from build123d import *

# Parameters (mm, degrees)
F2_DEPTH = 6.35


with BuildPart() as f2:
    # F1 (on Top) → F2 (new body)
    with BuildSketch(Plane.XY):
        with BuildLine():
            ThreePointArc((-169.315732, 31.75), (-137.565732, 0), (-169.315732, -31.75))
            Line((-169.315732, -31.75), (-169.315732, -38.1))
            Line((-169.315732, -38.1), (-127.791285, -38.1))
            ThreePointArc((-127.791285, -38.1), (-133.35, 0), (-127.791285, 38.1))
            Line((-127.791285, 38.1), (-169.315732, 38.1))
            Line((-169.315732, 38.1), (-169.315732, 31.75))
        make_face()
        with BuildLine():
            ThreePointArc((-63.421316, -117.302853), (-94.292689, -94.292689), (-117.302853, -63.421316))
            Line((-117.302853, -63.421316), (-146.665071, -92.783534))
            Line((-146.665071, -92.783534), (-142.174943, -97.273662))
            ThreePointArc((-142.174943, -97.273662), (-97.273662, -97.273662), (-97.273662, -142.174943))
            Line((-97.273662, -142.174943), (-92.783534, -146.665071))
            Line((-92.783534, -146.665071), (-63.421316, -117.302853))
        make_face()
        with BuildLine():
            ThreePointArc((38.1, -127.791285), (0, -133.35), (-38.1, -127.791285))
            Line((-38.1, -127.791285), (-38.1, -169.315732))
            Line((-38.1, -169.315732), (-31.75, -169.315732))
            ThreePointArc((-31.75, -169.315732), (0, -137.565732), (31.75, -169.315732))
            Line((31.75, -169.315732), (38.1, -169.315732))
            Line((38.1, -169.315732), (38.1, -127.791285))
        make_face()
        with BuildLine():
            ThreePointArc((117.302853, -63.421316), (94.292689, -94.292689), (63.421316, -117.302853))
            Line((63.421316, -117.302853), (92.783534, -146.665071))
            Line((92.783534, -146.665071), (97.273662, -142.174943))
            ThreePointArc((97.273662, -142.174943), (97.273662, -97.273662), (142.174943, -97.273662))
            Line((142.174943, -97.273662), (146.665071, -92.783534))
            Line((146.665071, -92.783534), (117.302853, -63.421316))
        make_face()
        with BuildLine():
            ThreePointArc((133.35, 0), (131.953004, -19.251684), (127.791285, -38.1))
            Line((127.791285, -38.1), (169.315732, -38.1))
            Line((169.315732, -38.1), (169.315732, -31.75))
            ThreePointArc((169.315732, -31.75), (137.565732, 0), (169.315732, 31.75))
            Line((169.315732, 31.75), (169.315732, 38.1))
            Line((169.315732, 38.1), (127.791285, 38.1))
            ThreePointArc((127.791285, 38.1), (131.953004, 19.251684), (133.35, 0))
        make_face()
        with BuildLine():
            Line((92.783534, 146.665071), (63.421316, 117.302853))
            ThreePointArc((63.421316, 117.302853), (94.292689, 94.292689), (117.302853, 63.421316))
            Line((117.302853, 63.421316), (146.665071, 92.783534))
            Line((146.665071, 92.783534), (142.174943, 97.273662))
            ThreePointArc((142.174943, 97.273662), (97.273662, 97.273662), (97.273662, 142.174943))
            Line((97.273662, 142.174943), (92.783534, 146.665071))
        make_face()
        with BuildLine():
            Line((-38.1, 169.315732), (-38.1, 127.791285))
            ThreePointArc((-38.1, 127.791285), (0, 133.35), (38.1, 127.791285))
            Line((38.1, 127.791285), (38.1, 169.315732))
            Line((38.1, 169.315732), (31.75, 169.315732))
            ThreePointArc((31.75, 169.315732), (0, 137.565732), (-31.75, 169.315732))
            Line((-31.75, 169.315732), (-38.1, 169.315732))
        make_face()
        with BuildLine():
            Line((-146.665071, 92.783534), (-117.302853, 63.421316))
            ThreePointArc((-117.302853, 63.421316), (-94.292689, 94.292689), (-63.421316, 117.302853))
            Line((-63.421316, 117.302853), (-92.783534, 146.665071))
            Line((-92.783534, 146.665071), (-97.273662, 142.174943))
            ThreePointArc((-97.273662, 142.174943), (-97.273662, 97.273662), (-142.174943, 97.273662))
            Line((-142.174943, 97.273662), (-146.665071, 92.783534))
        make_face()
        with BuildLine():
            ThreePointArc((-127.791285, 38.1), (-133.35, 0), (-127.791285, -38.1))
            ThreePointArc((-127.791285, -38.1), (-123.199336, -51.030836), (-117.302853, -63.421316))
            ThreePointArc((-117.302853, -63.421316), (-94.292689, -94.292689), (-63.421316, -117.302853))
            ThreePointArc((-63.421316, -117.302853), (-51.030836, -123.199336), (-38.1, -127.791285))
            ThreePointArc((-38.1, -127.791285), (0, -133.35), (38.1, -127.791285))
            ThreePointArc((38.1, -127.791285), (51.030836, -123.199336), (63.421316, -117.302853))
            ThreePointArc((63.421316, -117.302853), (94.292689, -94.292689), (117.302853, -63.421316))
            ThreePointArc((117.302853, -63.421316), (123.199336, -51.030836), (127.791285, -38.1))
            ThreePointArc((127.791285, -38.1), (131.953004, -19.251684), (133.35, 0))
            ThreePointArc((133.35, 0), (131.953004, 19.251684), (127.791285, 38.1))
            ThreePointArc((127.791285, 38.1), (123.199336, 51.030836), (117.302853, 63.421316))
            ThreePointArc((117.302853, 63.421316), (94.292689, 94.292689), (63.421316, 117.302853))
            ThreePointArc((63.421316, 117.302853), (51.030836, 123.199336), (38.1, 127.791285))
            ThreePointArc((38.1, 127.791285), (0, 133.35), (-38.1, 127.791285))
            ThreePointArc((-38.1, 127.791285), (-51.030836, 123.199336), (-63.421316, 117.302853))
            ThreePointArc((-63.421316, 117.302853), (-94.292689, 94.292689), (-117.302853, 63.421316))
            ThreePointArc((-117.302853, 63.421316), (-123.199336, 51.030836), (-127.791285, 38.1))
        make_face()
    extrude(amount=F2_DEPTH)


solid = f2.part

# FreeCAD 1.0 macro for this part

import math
import FreeCAD as App
import Part
import Sketcher
Q = App.Units.Quantity

doc = App.newDocument("Part")
params = doc.addObject("Spreadsheet::Sheet", "Params")
for row, (alias, value) in enumerate([
    ("sketch1_radius", "1.25 in"),
    ("sketch1_width", "0.25 in"),
    ("sketch1_length", "0.25 in"),
    ("pad1_length", "0.25 in"),
], start=1):
    params.set(f"A{row}", alias)
    params.set(f"B{row}", "=" + value)
    params.setAlias(f"B{row}", alias)

body = doc.addObject("PartDesign::Body", "Body")

# Sketch on XY plane
sketch1 = body.newObject("Sketcher::SketchObject", "Sketch")
sketch1.AttachmentSupport = (doc.getObject("XY_Plane"), [""])
sketch1.MapMode = "FlatFace"
sketch1.addGeometry([
    Part.ArcOfCircle(Part.Circle(App.Vector(-169.315732, 0, 0), App.Vector(0, 0, 1), 31.75), math.radians(-90), math.radians(90)),  # 0
    Part.LineSegment(App.Vector(-169.315732, -31.75, 0), App.Vector(-169.315732, -38.1, 0)),  # 1
    Part.LineSegment(App.Vector(-169.315732, -38.1, 0), App.Vector(-127.791285, -38.1, 0)),  # 2
    Part.ArcOfCircle(Part.Circle(App.Vector(-0.000019, -0.00001, 0), App.Vector(0, 0, 1), 133.349979), math.radians(-163.398452), math.radians(-151.60155)),  # 3
    Part.LineSegment(App.Vector(-117.302853, -63.421316, 0), App.Vector(-146.665071, -92.783534, 0)),  # 4
    Part.LineSegment(App.Vector(-146.665071, -92.783534, 0), App.Vector(-142.174943, -97.273662, 0)),  # 5
    Part.ArcOfCircle(Part.Circle(App.Vector(-119.724302, -119.724302, 0), App.Vector(0, 0, 1), 31.75), math.radians(-45), math.radians(135)),  # 6
    Part.LineSegment(App.Vector(-97.273662, -142.174943, 0), App.Vector(-92.783534, -146.665071, 0)),  # 7
    Part.LineSegment(App.Vector(-92.783534, -146.665071, 0), App.Vector(-63.421316, -117.302853, 0)),  # 8
    Part.ArcOfCircle(Part.Circle(App.Vector(-0.00001, -0.000019, 0), App.Vector(0, 0, 1), 133.349979), math.radians(-118.39845), math.radians(-106.601548)),  # 9
    Part.LineSegment(App.Vector(-38.1, -127.791285, 0), App.Vector(-38.1, -169.315732, 0)),  # 10
    Part.LineSegment(App.Vector(-38.1, -169.315732, 0), App.Vector(-31.75, -169.315732, 0)),  # 11
    Part.ArcOfCircle(Part.Circle(App.Vector(0, -169.315732, 0), App.Vector(0, 0, 1), 31.75), math.radians(0), math.radians(180)),  # 12
    Part.LineSegment(App.Vector(31.75, -169.315732, 0), App.Vector(38.1, -169.315732, 0)),  # 13
    Part.LineSegment(App.Vector(38.1, -169.315732, 0), App.Vector(38.1, -127.791285, 0)),  # 14
    Part.ArcOfCircle(Part.Circle(App.Vector(0.00001, -0.000019, 0), App.Vector(0, 0, 1), 133.349979), math.radians(-73.398452), math.radians(-61.60155)),  # 15
    Part.LineSegment(App.Vector(63.421316, -117.302853, 0), App.Vector(92.783534, -146.665071, 0)),  # 16
    Part.LineSegment(App.Vector(92.783534, -146.665071, 0), App.Vector(97.273662, -142.174943, 0)),  # 17
    Part.ArcOfCircle(Part.Circle(App.Vector(119.724302, -119.724302, 0), App.Vector(0, 0, 1), 31.75), math.radians(45), math.radians(225)),  # 18
    Part.LineSegment(App.Vector(142.174943, -97.273662, 0), App.Vector(146.665071, -92.783534, 0)),  # 19
    Part.LineSegment(App.Vector(146.665071, -92.783534, 0), App.Vector(117.302853, -63.421316, 0)),  # 20
    Part.ArcOfCircle(Part.Circle(App.Vector(0.000019, -0.00001, 0), App.Vector(0, 0, 1), 133.349979), math.radians(-28.39845), math.radians(-16.601548)),  # 21
    Part.LineSegment(App.Vector(127.791285, -38.1, 0), App.Vector(169.315732, -38.1, 0)),  # 22
    Part.LineSegment(App.Vector(169.315732, -38.1, 0), App.Vector(169.315732, -31.75, 0)),  # 23
    Part.ArcOfCircle(Part.Circle(App.Vector(169.315732, 0, 0), App.Vector(0, 0, 1), 31.75), math.radians(90), math.radians(270)),  # 24
    Part.LineSegment(App.Vector(169.315732, 31.75, 0), App.Vector(169.315732, 38.1, 0)),  # 25
    Part.LineSegment(App.Vector(169.315732, 38.1, 0), App.Vector(127.791285, 38.1, 0)),  # 26
    Part.ArcOfCircle(Part.Circle(App.Vector(0.000019, 0.00001, 0), App.Vector(0, 0, 1), 133.349979), math.radians(16.601548), math.radians(28.39845)),  # 27
    Part.LineSegment(App.Vector(117.302853, 63.421316, 0), App.Vector(146.665071, 92.783534, 0)),  # 28
    Part.LineSegment(App.Vector(146.665071, 92.783534, 0), App.Vector(142.174943, 97.273662, 0)),  # 29
    Part.ArcOfCircle(Part.Circle(App.Vector(119.724302, 119.724302, 0), App.Vector(0, 0, 1), 31.75), math.radians(135), math.radians(315)),  # 30
    Part.LineSegment(App.Vector(97.273662, 142.174943, 0), App.Vector(92.783534, 146.665071, 0)),  # 31
    Part.LineSegment(App.Vector(92.783534, 146.665071, 0), App.Vector(63.421316, 117.302853, 0)),  # 32
    Part.ArcOfCircle(Part.Circle(App.Vector(0.00001, 0.000019, 0), App.Vector(0, 0, 1), 133.349979), math.radians(61.60155), math.radians(73.398452)),  # 33
    Part.LineSegment(App.Vector(38.1, 127.791285, 0), App.Vector(38.1, 169.315732, 0)),  # 34
    Part.LineSegment(App.Vector(38.1, 169.315732, 0), App.Vector(31.75, 169.315732, 0)),  # 35
    Part.ArcOfCircle(Part.Circle(App.Vector(0, 169.315732, 0), App.Vector(0, 0, 1), 31.75), math.radians(180), math.radians(360)),  # 36
    Part.LineSegment(App.Vector(-31.75, 169.315732, 0), App.Vector(-38.1, 169.315732, 0)),  # 37
    Part.LineSegment(App.Vector(-38.1, 169.315732, 0), App.Vector(-38.1, 127.791285, 0)),  # 38
    Part.ArcOfCircle(Part.Circle(App.Vector(-0.00001, 0.000019, 0), App.Vector(0, 0, 1), 133.349979), math.radians(106.601548), math.radians(118.39845)),  # 39
    Part.LineSegment(App.Vector(-63.421316, 117.302853, 0), App.Vector(-92.783534, 146.665071, 0)),  # 40
    Part.LineSegment(App.Vector(-92.783534, 146.665071, 0), App.Vector(-97.273662, 142.174943, 0)),  # 41
    Part.ArcOfCircle(Part.Circle(App.Vector(-119.724302, 119.724302, 0), App.Vector(0, 0, 1), 31.75), math.radians(-135), math.radians(45)),  # 42
    Part.LineSegment(App.Vector(-142.174943, 97.273662, 0), App.Vector(-146.665071, 92.783534, 0)),  # 43
    Part.LineSegment(App.Vector(-146.665071, 92.783534, 0), App.Vector(-117.302853, 63.421316, 0)),  # 44
    Part.ArcOfCircle(Part.Circle(App.Vector(-0.000019, 0.00001, 0), App.Vector(0, 0, 1), 133.349979), math.radians(151.60155), math.radians(163.398452)),  # 45
    Part.LineSegment(App.Vector(-127.791285, 38.1, 0), App.Vector(-169.315732, 38.1, 0)),  # 46
    Part.LineSegment(App.Vector(-169.315732, 38.1, 0), App.Vector(-169.315732, 31.75, 0)),  # 47
], False)
sketch1.addConstraint([
    Sketcher.Constraint("Coincident", 0, 1, 1, 1),
    Sketcher.Constraint("Coincident", 1, 2, 2, 1),
    Sketcher.Constraint("Coincident", 2, 2, 3, 1),
    Sketcher.Constraint("Coincident", 3, 2, 4, 1),
    Sketcher.Constraint("Coincident", 4, 2, 5, 1),
    Sketcher.Constraint("Coincident", 5, 2, 6, 2),
    Sketcher.Constraint("Coincident", 6, 1, 7, 1),
    Sketcher.Constraint("Coincident", 7, 2, 8, 1),
    Sketcher.Constraint("Coincident", 8, 2, 9, 1),
    Sketcher.Constraint("Coincident", 9, 2, 10, 1),
    Sketcher.Constraint("Coincident", 10, 2, 11, 1),
    Sketcher.Constraint("Coincident", 11, 2, 12, 2),
    Sketcher.Constraint("Coincident", 12, 1, 13, 1),
    Sketcher.Constraint("Coincident", 13, 2, 14, 1),
    Sketcher.Constraint("Coincident", 14, 2, 15, 1),
    Sketcher.Constraint("Coincident", 15, 2, 16, 1),
    Sketcher.Constraint("Coincident", 16, 2, 17, 1),
    Sketcher.Constraint("Coincident", 17, 2, 18, 2),
    Sketcher.Constraint("Coincident", 18, 1, 19, 1),
    Sketcher.Constraint("Coincident", 19, 2, 20, 1),
    Sketcher.Constraint("Coincident", 20, 2, 21, 1),
    Sketcher.Constraint("Coincident", 21, 2, 22, 1),
    Sketcher.Constraint("Coincident", 22, 2, 23, 1),
    Sketcher.Constraint("Coincident", 23, 2, 24, 2),
    Sketcher.Constraint("Coincident", 24, 1, 25, 1),
    Sketcher.Constraint("Coincident", 25, 2, 26, 1),
    Sketcher.Constraint("Coincident", 26, 2, 27, 1),
    Sketcher.Constraint("Coincident", 27, 2, 28, 1),
    Sketcher.Constraint("Coincident", 28, 2, 29, 1),
    Sketcher.Constraint("Coincident", 29, 2, 30, 2),
    Sketcher.Constraint("Coincident", 30, 1, 31, 1),
    Sketcher.Constraint("Coincident", 31, 2, 32, 1),
    Sketcher.Constraint("Coincident", 32, 2, 33, 1),
    Sketcher.Constraint("Coincident", 33, 2, 34, 1),
    Sketcher.Constraint("Coincident", 34, 2, 35, 1),
    Sketcher.Constraint("Coincident", 35, 2, 36, 2),
    Sketcher.Constraint("Coincident", 36, 1, 37, 1),
    Sketcher.Constraint("Coincident", 37, 2, 38, 1),
    Sketcher.Constraint("Coincident", 38, 2, 39, 1),
    Sketcher.Constraint("Coincident", 39, 2, 40, 1),
    Sketcher.Constraint("Coincident", 40, 2, 41, 1),
    Sketcher.Constraint("Coincident", 41, 2, 42, 2),
    Sketcher.Constraint("Coincident", 42, 1, 43, 1),
    Sketcher.Constraint("Coincident", 43, 2, 44, 1),
    Sketcher.Constraint("Coincident", 44, 2, 45, 1),
    Sketcher.Constraint("Coincident", 45, 2, 46, 1),
    Sketcher.Constraint("Coincident", 46, 2, 47, 1),
    Sketcher.Constraint("Coincident", 47, 2, 0, 2),
    Sketcher.Constraint("Vertical", 1),
    Sketcher.Constraint("Horizontal", 2),
    Sketcher.Constraint("Vertical", 10),
    Sketcher.Constraint("Horizontal", 11),
    Sketcher.Constraint("Horizontal", 13),
    Sketcher.Constraint("Vertical", 14),
    Sketcher.Constraint("Horizontal", 22),
    Sketcher.Constraint("Vertical", 23),
    Sketcher.Constraint("Vertical", 25),
    Sketcher.Constraint("Horizontal", 26),
    Sketcher.Constraint("Vertical", 34),
    Sketcher.Constraint("Horizontal", 35),
    Sketcher.Constraint("Horizontal", 37),
    Sketcher.Constraint("Vertical", 38),
    Sketcher.Constraint("Horizontal", 46),
    Sketcher.Constraint("Vertical", 47),
    Sketcher.Constraint("Equal", 0, 6),
    Sketcher.Constraint("Equal", 3, 9),
    Sketcher.Constraint("Equal", 6, 12),
    Sketcher.Constraint("Equal", 9, 15),
    Sketcher.Constraint("Equal", 12, 18),
    Sketcher.Constraint("Equal", 15, 21),
    Sketcher.Constraint("Equal", 18, 24),
    Sketcher.Constraint("Equal", 21, 27),
    Sketcher.Constraint("Equal", 24, 30),
    Sketcher.Constraint("Equal", 27, 33),
    Sketcher.Constraint("Equal", 30, 36),
    Sketcher.Constraint("Equal", 33, 39),
    Sketcher.Constraint("Equal", 36, 42),
    Sketcher.Constraint("Equal", 39, 45),
    Sketcher.Constraint("Symmetric", 0, 3, 24, 3, -1, 1),
    Sketcher.Constraint("Symmetric", 3, 3, 27, 3, -1, 1),
    Sketcher.Constraint("Symmetric", 6, 3, 30, 3, -1, 1),
    Sketcher.Constraint("Symmetric", 9, 3, 33, 3, -1, 1),
    Sketcher.Constraint("Symmetric", 12, 3, 36, 3, -1, 1),
    Sketcher.Constraint("Symmetric", 15, 3, 39, 3, -1, 1),
    Sketcher.Constraint("Symmetric", 18, 3, 42, 3, -1, 1),
    Sketcher.Constraint("Symmetric", 21, 3, 45, 3, -1, 1),
    Sketcher.Constraint("Symmetric", 1, 2, 25, 2, -1, 1),
    Sketcher.Constraint("Symmetric", 4, 2, 28, 2, -1, 1),
    Sketcher.Constraint("Symmetric", 7, 2, 31, 2, -1, 1),
    Sketcher.Constraint("Symmetric", 10, 2, 34, 2, -1, 1),
    Sketcher.Constraint("Symmetric", 13, 2, 37, 2, -1, 1),
    Sketcher.Constraint("Symmetric", 16, 2, 40, 2, -1, 1),
    Sketcher.Constraint("Symmetric", 19, 2, 43, 2, -1, 1),
    Sketcher.Constraint("Symmetric", 22, 2, 46, 2, -1, 1),
    Sketcher.Constraint("Symmetric", 9, 3, 15, 3, -2),
    Sketcher.Constraint("Symmetric", 6, 3, 18, 3, -2),
    Sketcher.Constraint("Symmetric", 3, 3, 21, 3, -2),
    Sketcher.Constraint("Symmetric", 11, 2, 12, 1, -2),
    Sketcher.Constraint("Symmetric", 7, 2, 16, 2, -2),
    Sketcher.Constraint("Symmetric", 4, 2, 19, 2, -2),
    Sketcher.Constraint("Symmetric", 1, 2, 22, 2, -2),
    Sketcher.Constraint("PointOnObject", 0, 3, -1),
    Sketcher.Constraint("Perpendicular", 4, 5),
    Sketcher.Constraint("Parallel", 5, 7),
    Sketcher.Constraint("Perpendicular", 7, 8),
    Sketcher.Constraint("Perpendicular", 8, 16),
    Sketcher.Constraint("Perpendicular", 16, 17),
    Sketcher.Constraint("Parallel", 17, 19),
    Sketcher.Constraint("Perpendicular", 19, 20),
    Sketcher.Constraint("Perpendicular", 20, 28),
    Sketcher.Constraint("Perpendicular", 28, 29),
    Sketcher.Constraint("Parallel", 29, 31),
    Sketcher.Constraint("Perpendicular", 31, 32),
    Sketcher.Constraint("Perpendicular", 32, 40),
    Sketcher.Constraint("Perpendicular", 40, 41),
    Sketcher.Constraint("Parallel", 41, 43),
    Sketcher.Constraint("Perpendicular", 43, 44),
    Sketcher.Constraint("Horizontal", 12, 3, 10, 2),
    Sketcher.Constraint("Horizontal", 9, 2, 14, 2),
    Sketcher.Constraint("Horizontal", 8, 2, 15, 2),
    Sketcher.Constraint("Vertical", 24, 3, 22, 2),
    Sketcher.Constraint("Equal", 37, 1),
    Sketcher.Constraint("Equal", 46, 10),
    Sketcher.Constraint("Equal", 5, 7),
    Sketcher.Constraint("Equal", 4, 8),
    Sketcher.Constraint("Radius", 0, Q("1.25 in")),
    Sketcher.Constraint("DistanceX", 11, 1, 11, 2, Q("0.25 in")),
    Sketcher.Constraint("Distance", 5, Q("0.25 in")),
    Sketcher.Constraint("Radius", 3, Q("133.349979 mm")),
    Sketcher.Constraint("DistanceX", 2, 1, 2, 2, Q("41.524447 mm")),
    Sketcher.Constraint("DistanceX", 0, 3, -1, 1, Q("169.315732 mm")),
    Sketcher.Constraint("DistanceY", 12, 3, -1, 1, Q("169.315732 mm")),
    Sketcher.Constraint("DistanceX", 4, 2, -1, 1, Q("146.665071 mm")),
    Sketcher.Constraint("DistanceY", 5, 2, -1, 1, Q("97.273662 mm")),
    Sketcher.Constraint("DistanceY", 7, 2, -1, 1, Q("146.665071 mm")),
    Sketcher.Constraint("Distance", 4, Q("41.524447 mm")),
    Sketcher.Constraint("DistanceX", 6, 3, -1, 1, Q("119.724302 mm")),
])
sketch1.setExpression("Constraints[125]", "Params.sketch1_radius")
sketch1.setExpression("Constraints[126]", "Params.sketch1_width")
sketch1.setExpression("Constraints[127]", "Params.sketch1_length")
pad1 = body.newObject("PartDesign::Pad", "Pad")
pad1.Profile = sketch1
pad1.setExpression("Length", "Params.pad1_length")

doc.recompute()
